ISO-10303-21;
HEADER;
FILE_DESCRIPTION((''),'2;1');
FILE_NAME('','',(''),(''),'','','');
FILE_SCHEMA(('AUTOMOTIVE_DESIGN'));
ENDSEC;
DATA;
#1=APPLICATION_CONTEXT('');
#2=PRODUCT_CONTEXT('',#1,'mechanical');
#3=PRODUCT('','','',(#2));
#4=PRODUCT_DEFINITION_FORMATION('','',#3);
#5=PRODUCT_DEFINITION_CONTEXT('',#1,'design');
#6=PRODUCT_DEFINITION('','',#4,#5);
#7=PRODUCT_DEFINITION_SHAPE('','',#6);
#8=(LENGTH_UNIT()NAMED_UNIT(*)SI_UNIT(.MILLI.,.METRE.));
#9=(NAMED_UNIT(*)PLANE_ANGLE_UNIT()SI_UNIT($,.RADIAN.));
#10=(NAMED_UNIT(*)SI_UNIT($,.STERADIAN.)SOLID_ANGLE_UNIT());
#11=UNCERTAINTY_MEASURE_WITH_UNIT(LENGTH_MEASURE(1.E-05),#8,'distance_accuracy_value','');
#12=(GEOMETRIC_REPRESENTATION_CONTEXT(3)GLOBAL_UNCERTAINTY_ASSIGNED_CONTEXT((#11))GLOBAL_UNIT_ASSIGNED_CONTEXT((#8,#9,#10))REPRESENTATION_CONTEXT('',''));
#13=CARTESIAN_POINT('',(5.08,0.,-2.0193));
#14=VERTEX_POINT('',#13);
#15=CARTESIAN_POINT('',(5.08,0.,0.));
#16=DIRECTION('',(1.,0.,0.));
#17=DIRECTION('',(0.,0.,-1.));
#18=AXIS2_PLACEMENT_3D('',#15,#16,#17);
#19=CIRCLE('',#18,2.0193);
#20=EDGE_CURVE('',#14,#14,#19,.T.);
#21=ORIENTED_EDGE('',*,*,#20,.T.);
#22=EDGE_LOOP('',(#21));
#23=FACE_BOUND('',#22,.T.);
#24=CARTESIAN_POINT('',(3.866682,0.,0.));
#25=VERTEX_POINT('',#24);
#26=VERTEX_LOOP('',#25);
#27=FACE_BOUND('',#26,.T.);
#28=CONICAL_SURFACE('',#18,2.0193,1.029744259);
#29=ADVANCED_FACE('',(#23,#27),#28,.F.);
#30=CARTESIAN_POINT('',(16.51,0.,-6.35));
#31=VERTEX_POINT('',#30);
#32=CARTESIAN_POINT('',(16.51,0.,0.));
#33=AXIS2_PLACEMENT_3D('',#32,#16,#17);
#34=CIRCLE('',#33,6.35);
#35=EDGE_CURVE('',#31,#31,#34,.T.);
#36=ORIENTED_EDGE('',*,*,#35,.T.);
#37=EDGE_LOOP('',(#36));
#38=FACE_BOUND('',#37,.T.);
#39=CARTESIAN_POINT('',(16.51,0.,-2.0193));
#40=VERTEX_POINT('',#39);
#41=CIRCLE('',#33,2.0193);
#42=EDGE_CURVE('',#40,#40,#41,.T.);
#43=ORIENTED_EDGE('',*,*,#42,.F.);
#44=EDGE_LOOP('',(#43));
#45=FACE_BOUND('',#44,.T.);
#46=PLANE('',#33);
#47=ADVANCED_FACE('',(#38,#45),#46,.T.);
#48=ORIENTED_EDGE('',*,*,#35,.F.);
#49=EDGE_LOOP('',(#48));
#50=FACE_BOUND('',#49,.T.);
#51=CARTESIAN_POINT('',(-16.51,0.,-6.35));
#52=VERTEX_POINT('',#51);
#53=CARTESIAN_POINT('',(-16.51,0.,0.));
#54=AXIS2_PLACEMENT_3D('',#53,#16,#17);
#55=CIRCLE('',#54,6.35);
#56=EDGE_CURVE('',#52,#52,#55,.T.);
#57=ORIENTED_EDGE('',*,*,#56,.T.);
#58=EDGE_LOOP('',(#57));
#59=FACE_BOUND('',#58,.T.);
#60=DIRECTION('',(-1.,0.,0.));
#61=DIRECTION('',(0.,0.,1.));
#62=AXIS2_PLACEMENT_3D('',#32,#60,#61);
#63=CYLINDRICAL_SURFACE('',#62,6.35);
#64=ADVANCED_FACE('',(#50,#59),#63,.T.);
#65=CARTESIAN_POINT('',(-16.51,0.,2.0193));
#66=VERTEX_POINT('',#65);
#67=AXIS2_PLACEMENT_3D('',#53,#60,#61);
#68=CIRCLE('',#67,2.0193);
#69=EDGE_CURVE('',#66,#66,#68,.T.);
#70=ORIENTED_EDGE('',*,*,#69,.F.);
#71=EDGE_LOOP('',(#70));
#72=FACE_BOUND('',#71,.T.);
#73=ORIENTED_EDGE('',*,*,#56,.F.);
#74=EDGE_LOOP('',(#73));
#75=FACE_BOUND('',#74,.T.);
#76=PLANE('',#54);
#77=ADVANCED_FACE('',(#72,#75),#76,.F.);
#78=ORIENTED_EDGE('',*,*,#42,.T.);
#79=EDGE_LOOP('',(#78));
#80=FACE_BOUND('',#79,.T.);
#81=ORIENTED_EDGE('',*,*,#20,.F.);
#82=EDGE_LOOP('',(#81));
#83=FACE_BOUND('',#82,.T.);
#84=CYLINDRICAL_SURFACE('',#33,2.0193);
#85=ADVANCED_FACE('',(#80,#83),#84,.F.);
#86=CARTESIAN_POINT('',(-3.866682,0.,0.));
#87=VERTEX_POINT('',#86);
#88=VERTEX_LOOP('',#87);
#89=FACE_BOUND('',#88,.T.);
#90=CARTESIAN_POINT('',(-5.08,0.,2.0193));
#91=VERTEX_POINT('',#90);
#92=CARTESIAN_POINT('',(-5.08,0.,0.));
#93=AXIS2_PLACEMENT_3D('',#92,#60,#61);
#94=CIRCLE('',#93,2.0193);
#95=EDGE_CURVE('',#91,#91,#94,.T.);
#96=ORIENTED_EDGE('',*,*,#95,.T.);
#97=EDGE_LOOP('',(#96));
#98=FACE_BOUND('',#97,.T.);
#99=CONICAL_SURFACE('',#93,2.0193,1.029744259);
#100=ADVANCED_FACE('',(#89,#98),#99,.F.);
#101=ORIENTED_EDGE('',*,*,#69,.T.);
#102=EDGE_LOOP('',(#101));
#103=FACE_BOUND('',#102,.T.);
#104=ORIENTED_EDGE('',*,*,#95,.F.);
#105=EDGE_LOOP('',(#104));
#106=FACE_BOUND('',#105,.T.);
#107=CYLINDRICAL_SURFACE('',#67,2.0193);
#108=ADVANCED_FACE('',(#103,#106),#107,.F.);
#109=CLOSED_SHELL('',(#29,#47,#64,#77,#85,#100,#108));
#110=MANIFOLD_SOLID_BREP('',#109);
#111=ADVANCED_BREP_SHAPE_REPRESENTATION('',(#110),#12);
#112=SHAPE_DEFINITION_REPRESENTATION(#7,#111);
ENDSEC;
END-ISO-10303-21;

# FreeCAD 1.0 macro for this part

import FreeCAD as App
import Part
import Sketcher
Q = App.Units.Quantity

doc = App.newDocument("Part")
body = doc.addObject("PartDesign::Body", "Body")

sketch1 = body.newObject("Sketcher::SketchObject", "Sketch")
sketch1.AttachmentSupport = (doc.getObject("YZ_Plane"), [""])
sketch1.MapMode = "FlatFace"
sketch1.addGeometry(Part.Circle(App.Vector(0, 0, 0), App.Vector(0, 0, 1), 6.35), False)
sketch1.addConstraint(Sketcher.Constraint("Coincident", 0, 3, -1, 1))
sketch1.addConstraint(Sketcher.Constraint("Diameter", 0, Q("0.5 in")))
pad1 = body.newObject("PartDesign::Pad", "Pad")
pad1.Profile = sketch1
pad1.Length = Q("1.3 in")
pad1.Midplane = True

sketch2 = body.newObject("Sketcher::SketchObject", "Sketch001")
sketch2.AttachmentSupport = (doc.getObject("XZ_Plane"), [""])
sketch2.MapMode = "FlatFace"
sketch2.addGeometry(Part.LineSegment(App.Vector(3.866682, 0, 0), App.Vector(16.51, 0, 0)), False)
sketch2.addGeometry(Part.LineSegment(App.Vector(16.51, 0, 0), App.Vector(16.51, -2.0193, 0)), False)
sketch2.addGeometry(Part.LineSegment(App.Vector(16.51, -2.0193, 0), App.Vector(5.08, -2.0193, 0)), False)
sketch2.addGeometry(Part.LineSegment(App.Vector(5.08, -2.0193, 0), App.Vector(3.866682, 0, 0)), False)
sketch2.addConstraint(Sketcher.Constraint("Coincident", 0, 2, 1, 1))
sketch2.addConstraint(Sketcher.Constraint("Coincident", 1, 2, 2, 1))
sketch2.addConstraint(Sketcher.Constraint("Coincident", 2, 2, 3, 1))
sketch2.addConstraint(Sketcher.Constraint("Coincident", 3, 2, 0, 1))
sketch2.addConstraint(Sketcher.Constraint("Horizontal", 0))
sketch2.addConstraint(Sketcher.Constraint("Vertical", 1))
sketch2.addConstraint(Sketcher.Constraint("Horizontal", 2))
sketch2.addConstraint(Sketcher.Constraint("PointOnObject", 0, 2, -1))
sketch2.addConstraint(Sketcher.Constraint("Angle", 3, Q("121 deg")))
sketch2.addConstraint(Sketcher.Constraint("DistanceX", 2, 2, 2, 1, Q("0.45 in")))
sketch2.addConstraint(Sketcher.Constraint("DistanceX", -1, 1, 2, 2, Q("0.2 in")))
sketch2.addConstraint(Sketcher.Constraint("DistanceY", 1, 2, 1, 1, Q("0.0795 in")))
groove = body.newObject("PartDesign::Groove", "Groove")
groove.Profile = sketch2
groove.ReferenceAxis = (sketch2, ["H_Axis"])
groove.Angle = 360
doc.recompute()

mirrored = body.newObject("PartDesign::Mirrored", "Mirrored")
mirrored.Originals = [groove]
mirrored.MirrorPlane = (doc.getObject("YZ_Plane"), [""])
body.Tip = mirrored

doc.recompute()
